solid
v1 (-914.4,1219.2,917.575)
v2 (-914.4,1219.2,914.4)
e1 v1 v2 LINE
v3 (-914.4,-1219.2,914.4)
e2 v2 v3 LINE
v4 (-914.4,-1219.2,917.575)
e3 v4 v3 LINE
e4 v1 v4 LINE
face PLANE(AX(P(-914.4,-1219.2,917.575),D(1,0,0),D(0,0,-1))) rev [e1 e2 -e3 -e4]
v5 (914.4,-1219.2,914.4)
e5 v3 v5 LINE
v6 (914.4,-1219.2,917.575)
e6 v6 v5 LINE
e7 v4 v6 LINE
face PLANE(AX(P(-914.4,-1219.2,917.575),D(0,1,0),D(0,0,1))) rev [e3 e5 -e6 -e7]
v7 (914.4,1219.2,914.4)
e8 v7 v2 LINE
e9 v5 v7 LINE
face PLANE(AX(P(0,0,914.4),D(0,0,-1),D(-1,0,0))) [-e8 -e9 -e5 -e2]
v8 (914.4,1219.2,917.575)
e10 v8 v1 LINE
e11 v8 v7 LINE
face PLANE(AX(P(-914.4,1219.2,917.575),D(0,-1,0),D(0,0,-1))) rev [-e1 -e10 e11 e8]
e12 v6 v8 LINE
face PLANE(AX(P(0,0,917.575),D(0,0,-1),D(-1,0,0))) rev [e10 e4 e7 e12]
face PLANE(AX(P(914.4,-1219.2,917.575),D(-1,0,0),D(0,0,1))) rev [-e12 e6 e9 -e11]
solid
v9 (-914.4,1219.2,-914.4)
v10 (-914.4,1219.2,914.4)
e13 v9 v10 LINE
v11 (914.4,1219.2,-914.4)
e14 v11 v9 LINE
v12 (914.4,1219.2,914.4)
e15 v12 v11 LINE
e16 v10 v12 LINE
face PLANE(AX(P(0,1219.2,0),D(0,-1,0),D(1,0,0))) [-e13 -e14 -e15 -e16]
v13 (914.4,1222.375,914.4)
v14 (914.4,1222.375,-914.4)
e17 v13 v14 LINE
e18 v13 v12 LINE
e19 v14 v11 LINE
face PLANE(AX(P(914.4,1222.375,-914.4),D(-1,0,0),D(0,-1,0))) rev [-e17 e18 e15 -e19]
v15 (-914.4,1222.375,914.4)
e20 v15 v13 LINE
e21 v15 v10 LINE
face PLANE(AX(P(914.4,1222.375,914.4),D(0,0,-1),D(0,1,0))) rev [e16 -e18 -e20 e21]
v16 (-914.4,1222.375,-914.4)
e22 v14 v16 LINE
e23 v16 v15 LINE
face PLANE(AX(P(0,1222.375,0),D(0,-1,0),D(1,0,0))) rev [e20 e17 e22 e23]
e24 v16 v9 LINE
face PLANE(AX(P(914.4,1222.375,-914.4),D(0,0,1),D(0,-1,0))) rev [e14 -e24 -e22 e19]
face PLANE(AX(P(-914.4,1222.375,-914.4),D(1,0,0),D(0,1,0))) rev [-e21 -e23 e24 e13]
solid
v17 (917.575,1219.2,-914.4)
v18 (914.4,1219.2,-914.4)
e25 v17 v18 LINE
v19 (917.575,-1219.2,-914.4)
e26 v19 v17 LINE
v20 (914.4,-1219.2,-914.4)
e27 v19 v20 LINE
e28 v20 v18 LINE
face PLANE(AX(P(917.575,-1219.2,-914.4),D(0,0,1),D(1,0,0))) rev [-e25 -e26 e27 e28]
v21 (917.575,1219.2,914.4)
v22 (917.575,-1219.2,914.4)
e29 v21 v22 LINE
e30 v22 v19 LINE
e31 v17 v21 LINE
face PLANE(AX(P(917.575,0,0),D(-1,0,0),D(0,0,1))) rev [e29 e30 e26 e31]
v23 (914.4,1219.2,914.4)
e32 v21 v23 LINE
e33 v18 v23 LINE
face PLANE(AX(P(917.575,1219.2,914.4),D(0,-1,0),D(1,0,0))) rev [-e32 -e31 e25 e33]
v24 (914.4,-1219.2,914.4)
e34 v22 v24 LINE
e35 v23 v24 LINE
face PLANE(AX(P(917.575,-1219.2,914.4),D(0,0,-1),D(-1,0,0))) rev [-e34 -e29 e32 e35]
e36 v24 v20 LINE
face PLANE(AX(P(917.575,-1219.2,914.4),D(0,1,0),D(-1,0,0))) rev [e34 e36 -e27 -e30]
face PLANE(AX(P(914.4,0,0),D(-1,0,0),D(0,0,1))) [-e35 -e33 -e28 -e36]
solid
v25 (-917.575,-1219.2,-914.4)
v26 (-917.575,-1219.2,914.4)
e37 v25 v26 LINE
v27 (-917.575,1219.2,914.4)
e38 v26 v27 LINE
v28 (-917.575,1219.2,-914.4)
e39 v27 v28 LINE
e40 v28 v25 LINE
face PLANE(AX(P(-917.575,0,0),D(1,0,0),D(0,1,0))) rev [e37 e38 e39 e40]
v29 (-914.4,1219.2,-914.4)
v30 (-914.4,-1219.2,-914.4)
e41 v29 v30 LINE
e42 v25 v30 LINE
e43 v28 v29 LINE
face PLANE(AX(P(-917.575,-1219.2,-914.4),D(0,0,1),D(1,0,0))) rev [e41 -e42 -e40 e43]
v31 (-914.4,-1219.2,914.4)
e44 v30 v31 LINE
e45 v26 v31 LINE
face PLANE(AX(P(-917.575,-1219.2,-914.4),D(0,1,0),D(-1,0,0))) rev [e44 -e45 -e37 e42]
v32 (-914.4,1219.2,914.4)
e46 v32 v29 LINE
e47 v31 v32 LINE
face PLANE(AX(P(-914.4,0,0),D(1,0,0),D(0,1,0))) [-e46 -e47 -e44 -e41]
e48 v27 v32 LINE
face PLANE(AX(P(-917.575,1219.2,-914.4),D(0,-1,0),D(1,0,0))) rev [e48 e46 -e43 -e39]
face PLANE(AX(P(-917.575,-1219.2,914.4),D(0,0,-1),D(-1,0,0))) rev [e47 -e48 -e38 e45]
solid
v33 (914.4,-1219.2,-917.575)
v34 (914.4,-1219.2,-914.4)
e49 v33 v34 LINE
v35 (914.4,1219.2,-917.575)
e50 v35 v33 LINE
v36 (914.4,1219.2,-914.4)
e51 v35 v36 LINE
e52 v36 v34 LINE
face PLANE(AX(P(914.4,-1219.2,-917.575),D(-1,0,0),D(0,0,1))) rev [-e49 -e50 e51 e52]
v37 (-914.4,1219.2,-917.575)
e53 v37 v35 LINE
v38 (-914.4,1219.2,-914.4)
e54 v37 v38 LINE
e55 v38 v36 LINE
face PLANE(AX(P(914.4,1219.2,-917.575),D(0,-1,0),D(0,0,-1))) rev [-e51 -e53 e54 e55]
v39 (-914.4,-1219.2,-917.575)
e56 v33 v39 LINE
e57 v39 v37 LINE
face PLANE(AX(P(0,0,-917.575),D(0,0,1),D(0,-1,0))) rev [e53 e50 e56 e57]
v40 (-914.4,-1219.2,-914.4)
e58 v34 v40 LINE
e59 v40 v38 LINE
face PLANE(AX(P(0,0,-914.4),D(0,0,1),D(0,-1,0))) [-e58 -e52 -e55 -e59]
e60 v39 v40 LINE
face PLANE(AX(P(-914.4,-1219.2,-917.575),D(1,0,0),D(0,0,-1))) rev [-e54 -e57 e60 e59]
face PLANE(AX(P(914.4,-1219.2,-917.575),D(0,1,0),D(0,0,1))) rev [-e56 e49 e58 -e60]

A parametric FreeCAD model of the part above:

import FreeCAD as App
import Part
import Sketcher
from FreeCAD import Vector
Q = App.Units.Quantity

doc = App.newDocument("Part")
body = doc.addObject("PartDesign::Body", "Body")

sketch1 = doc.addObject("Sketcher::SketchObject", "Sketch")
body.addObject(sketch1)
sketch1.AttachmentSupport = (doc.XZ_Plane, [""])
sketch1.MapMode = "FlatFace"
sketch1.AttachmentOffset = App.Placement(Vector(0, 0, -48 * 25.4), App.Rotation())
sketch1.addGeometry(Part.LineSegment(Vector(-914.4, -914.4, 0), Vector(-914.4, 914.4, 0)), False)
sketch1.addGeometry(Part.LineSegment(Vector(-914.4, 914.4, 0), Vector(914.4, 914.4, 0)), False)
sketch1.addGeometry(Part.LineSegment(Vector(914.4, 914.4, 0), Vector(914.4, -914.4, 0)), False)
sketch1.addGeometry(Part.LineSegment(Vector(914.4, -914.4, 0), Vector(-914.4, -914.4, 0)), False)
sketch1.addConstraint(Sketcher.Constraint("Coincident", 0, 2, 1, 1))
sketch1.addConstraint(Sketcher.Constraint("Coincident", 1, 2, 2, 1))
sketch1.addConstraint(Sketcher.Constraint("Coincident", 2, 2, 3, 1))
sketch1.addConstraint(Sketcher.Constraint("Coincident", 3, 2, 0, 1))
sketch1.addConstraint(Sketcher.Constraint("Vertical", 0))
sketch1.addConstraint(Sketcher.Constraint("Horizontal", 1))
sketch1.addConstraint(Sketcher.Constraint("Vertical", 2))
sketch1.addConstraint(Sketcher.Constraint("Horizontal", 3))
sketch1.addConstraint(Sketcher.Constraint("Symmetric", 0, 2, 2, 2, -1, 1))
sketch1.addConstraint(Sketcher.Constraint("Equal", 3, 0))
sketch1.addConstraint(Sketcher.Constraint("DistanceX", 1, 1, 1, 2, Q("72 in")))
pad1 = doc.addObject("PartDesign::Pad", "Pad")
body.addObject(pad1)
pad1.Profile = sketch1
pad1.Length = Q("0.125 in")
pad1.Reversed = True
body2 = doc.addObject("PartDesign::Body", "Body001")

sketch2 = doc.addObject("Sketcher::SketchObject", "Sketch001")
body2.addObject(sketch2)
sketch2.AttachmentSupport = (doc.getObject("XY_Plane001"), [""])
sketch2.MapMode = "FlatFace"
sketch2.AttachmentOffset = App.Placement(Vector(0, 0, -36 * 25.4), App.Rotation())
sketch2.addGeometry(Part.LineSegment(Vector(914.4, 1219.2, 0), Vector(914.4, -1219.2, 0)), False)
sketch2.addGeometry(Part.LineSegment(Vector(914.4, -1219.2, 0), Vector(-914.4, -1219.2, 0)), False)
sketch2.addGeometry(Part.LineSegment(Vector(-914.4, -1219.2, 0), Vector(-914.4, 1219.2, 0)), False)
sketch2.addGeometry(Part.LineSegment(Vector(-914.4, 1219.2, 0), Vector(914.4, 1219.2, 0)), False)
sketch2.addConstraint(Sketcher.Constraint("Coincident", 0, 2, 1, 1))
sketch2.addConstraint(Sketcher.Constraint("Coincident", 1, 2, 2, 1))
sketch2.addConstraint(Sketcher.Constraint("Coincident", 2, 2, 3, 1))
sketch2.addConstraint(Sketcher.Constraint("Coincident", 3, 2, 0, 1))
sketch2.addConstraint(Sketcher.Constraint("Vertical", 0))
sketch2.addConstraint(Sketcher.Constraint("Horizontal", 1))
sketch2.addConstraint(Sketcher.Constraint("Vertical", 2))
sketch2.addConstraint(Sketcher.Constraint("Horizontal", 3))
sketch2.addConstraint(Sketcher.Constraint("Symmetric", 0, 2, 2, 2, -1, 1))
sketch2.addConstraint(Sketcher.Constraint("DistanceX", 1, 2, 1, 1, Q("72 in")))
sketch2.addConstraint(Sketcher.Constraint("DistanceY", 0, 2, 0, 1, Q("96 in")))
pad2 = doc.addObject("PartDesign::Pad", "Pad001")
body2.addObject(pad2)
pad2.Profile = sketch2
pad2.Length = Q("0.125 in")
pad2.Reversed = True
body3 = doc.addObject("PartDesign::Body", "Body002")

sketch3 = doc.addObject("Sketcher::SketchObject", "Sketch002")
body3.addObject(sketch3)
sketch3.AttachmentSupport = (doc.getObject("YZ_Plane002"), [""])
sketch3.MapMode = "FlatFace"
sketch3.AttachmentOffset = App.Placement(Vector(0, 0, -36 * 25.4), App.Rotation())
sketch3.addGeometry(Part.LineSegment(Vector(1219.2, -914.4, 0), Vector(-1219.2, -914.4, 0)), False)
sketch3.addGeometry(Part.LineSegment(Vector(-1219.2, -914.4, 0), Vector(-1219.2, 914.4, 0)), False)
sketch3.addGeometry(Part.LineSegment(Vector(-1219.2, 914.4, 0), Vector(1219.2, 914.4, 0)), False)
sketch3.addGeometry(Part.LineSegment(Vector(1219.2, 914.4, 0), Vector(1219.2, -914.4, 0)), False)
sketch3.addConstraint(Sketcher.Constraint("Coincident", 0, 2, 1, 1))
sketch3.addConstraint(Sketcher.Constraint("Coincident", 1, 2, 2, 1))
sketch3.addConstraint(Sketcher.Constraint("Coincident", 2, 2, 3, 1))
sketch3.addConstraint(Sketcher.Constraint("Coincident", 3, 2, 0, 1))
sketch3.addConstraint(Sketcher.Constraint("Horizontal", 0))
sketch3.addConstraint(Sketcher.Constraint("Vertical", 1))
sketch3.addConstraint(Sketcher.Constraint("Horizontal", 2))
sketch3.addConstraint(Sketcher.Constraint("Vertical", 3))
sketch3.addConstraint(Sketcher.Constraint("Symmetric", 0, 2, 2, 2, -1, 1))
sketch3.addConstraint(Sketcher.Constraint("DistanceX", 0, 2, 0, 1, Q("96 in")))
sketch3.addConstraint(Sketcher.Constraint("DistanceY", 1, 1, 1, 2, Q("72 in")))
pad3 = doc.addObject("PartDesign::Pad", "Pad002")
body3.addObject(pad3)
pad3.Profile = sketch3
pad3.Length = Q("0.125 in")
pad3.Reversed = True
body4 = doc.addObject("PartDesign::Body", "Body003")

sketch4 = doc.addObject("Sketcher::SketchObject", "Sketch003")
body4.addObject(sketch4)
sketch4.AttachmentSupport = (doc.getObject("YZ_Plane003"), [""])
sketch4.MapMode = "FlatFace"
sketch4.AttachmentOffset = App.Placement(Vector(0, 0, 36 * 25.4), App.Rotation())
sketch4.addGeometry(Part.LineSegment(Vector(1219.2, 914.4, 0), Vector(-1219.2, 914.4, 0)), False)
sketch4.addGeometry(Part.LineSegment(Vector(-1219.2, 914.4, 0), Vector(-1219.2, -914.4, 0)), False)
sketch4.addGeometry(Part.LineSegment(Vector(-1219.2, -914.4, 0), Vector(1219.2, -914.4, 0)), False)
sketch4.addGeometry(Part.LineSegment(Vector(1219.2, -914.4, 0), Vector(1219.2, 914.4, 0)), False)
sketch4.addConstraint(Sketcher.Constraint("Coincident", 0, 2, 1, 1))
sketch4.addConstraint(Sketcher.Constraint("Coincident", 1, 2, 2, 1))
sketch4.addConstraint(Sketcher.Constraint("Coincident", 2, 2, 3, 1))
sketch4.addConstraint(Sketcher.Constraint("Coincident", 3, 2, 0, 1))
sketch4.addConstraint(Sketcher.Constraint("Horizontal", 0))
sketch4.addConstraint(Sketcher.Constraint("Vertical", 1))
sketch4.addConstraint(Sketcher.Constraint("Horizontal", 2))
sketch4.addConstraint(Sketcher.Constraint("Vertical", 3))
sketch4.addConstraint(Sketcher.Constraint("Symmetric", 0, 2, 2, 2, -1, 1))
sketch4.addConstraint(Sketcher.Constraint("DistanceX", 0, 2, 0, 1, Q("96 in")))
sketch4.addConstraint(Sketcher.Constraint("DistanceY", 1, 2, 1, 1, Q("72 in")))
pad4 = doc.addObject("PartDesign::Pad", "Pad003")
body4.addObject(pad4)
pad4.Profile = sketch4
pad4.Length = Q("0.125 in")
body5 = doc.addObject("PartDesign::Body", "Body004")

sketch5 = doc.addObject("Sketcher::SketchObject", "Sketch004")
body5.addObject(sketch5)
sketch5.AttachmentSupport = (doc.getObject("XY_Plane004"), [""])
sketch5.MapMode = "FlatFace"
sketch5.AttachmentOffset = App.Placement(Vector(0, 0, 36 * 25.4), App.Rotation())
sketch5.addGeometry(Part.LineSegment(Vector(-914.4, 1219.2, 0), Vector(-914.4, -1219.2, 0)), False)
sketch5.addGeometry(Part.LineSegment(Vector(-914.4, -1219.2, 0), Vector(914.4, -1219.2, 0)), False)
sketch5.addGeometry(Part.LineSegment(Vector(914.4, -1219.2, 0), Vector(914.4, 1219.2, 0)), False)
sketch5.addGeometry(Part.LineSegment(Vector(914.4, 1219.2, 0), Vector(-914.4, 1219.2, 0)), False)
sketch5.addConstraint(Sketcher.Constraint("Coincident", 0, 2, 1, 1))
sketch5.addConstraint(Sketcher.Constraint("Coincident", 1, 2, 2, 1))
sketch5.addConstraint(Sketcher.Constraint("Coincident", 2, 2, 3, 1))
sketch5.addConstraint(Sketcher.Constraint("Coincident", 3, 2, 0, 1))
sketch5.addConstraint(Sketcher.Constraint("Vertical", 0))
sketch5.addConstraint(Sketcher.Constraint("Horizontal", 1))
sketch5.addConstraint(Sketcher.Constraint("Vertical", 2))
sketch5.addConstraint(Sketcher.Constraint("Horizontal", 3))
sketch5.addConstraint(Sketcher.Constraint("Symmetric", 0, 2, 2, 2, -1, 1))
sketch5.addConstraint(Sketcher.Constraint("DistanceX", 1, 1, 1, 2, Q("72 in")))
sketch5.addConstraint(Sketcher.Constraint("DistanceY", 0, 2, 0, 1, Q("96 in")))
pad5 = doc.addObject("PartDesign::Pad", "Pad004")
body5.addObject(pad5)
pad5.Profile = sketch5
pad5.Length = Q("0.125 in")

doc.recompute()
